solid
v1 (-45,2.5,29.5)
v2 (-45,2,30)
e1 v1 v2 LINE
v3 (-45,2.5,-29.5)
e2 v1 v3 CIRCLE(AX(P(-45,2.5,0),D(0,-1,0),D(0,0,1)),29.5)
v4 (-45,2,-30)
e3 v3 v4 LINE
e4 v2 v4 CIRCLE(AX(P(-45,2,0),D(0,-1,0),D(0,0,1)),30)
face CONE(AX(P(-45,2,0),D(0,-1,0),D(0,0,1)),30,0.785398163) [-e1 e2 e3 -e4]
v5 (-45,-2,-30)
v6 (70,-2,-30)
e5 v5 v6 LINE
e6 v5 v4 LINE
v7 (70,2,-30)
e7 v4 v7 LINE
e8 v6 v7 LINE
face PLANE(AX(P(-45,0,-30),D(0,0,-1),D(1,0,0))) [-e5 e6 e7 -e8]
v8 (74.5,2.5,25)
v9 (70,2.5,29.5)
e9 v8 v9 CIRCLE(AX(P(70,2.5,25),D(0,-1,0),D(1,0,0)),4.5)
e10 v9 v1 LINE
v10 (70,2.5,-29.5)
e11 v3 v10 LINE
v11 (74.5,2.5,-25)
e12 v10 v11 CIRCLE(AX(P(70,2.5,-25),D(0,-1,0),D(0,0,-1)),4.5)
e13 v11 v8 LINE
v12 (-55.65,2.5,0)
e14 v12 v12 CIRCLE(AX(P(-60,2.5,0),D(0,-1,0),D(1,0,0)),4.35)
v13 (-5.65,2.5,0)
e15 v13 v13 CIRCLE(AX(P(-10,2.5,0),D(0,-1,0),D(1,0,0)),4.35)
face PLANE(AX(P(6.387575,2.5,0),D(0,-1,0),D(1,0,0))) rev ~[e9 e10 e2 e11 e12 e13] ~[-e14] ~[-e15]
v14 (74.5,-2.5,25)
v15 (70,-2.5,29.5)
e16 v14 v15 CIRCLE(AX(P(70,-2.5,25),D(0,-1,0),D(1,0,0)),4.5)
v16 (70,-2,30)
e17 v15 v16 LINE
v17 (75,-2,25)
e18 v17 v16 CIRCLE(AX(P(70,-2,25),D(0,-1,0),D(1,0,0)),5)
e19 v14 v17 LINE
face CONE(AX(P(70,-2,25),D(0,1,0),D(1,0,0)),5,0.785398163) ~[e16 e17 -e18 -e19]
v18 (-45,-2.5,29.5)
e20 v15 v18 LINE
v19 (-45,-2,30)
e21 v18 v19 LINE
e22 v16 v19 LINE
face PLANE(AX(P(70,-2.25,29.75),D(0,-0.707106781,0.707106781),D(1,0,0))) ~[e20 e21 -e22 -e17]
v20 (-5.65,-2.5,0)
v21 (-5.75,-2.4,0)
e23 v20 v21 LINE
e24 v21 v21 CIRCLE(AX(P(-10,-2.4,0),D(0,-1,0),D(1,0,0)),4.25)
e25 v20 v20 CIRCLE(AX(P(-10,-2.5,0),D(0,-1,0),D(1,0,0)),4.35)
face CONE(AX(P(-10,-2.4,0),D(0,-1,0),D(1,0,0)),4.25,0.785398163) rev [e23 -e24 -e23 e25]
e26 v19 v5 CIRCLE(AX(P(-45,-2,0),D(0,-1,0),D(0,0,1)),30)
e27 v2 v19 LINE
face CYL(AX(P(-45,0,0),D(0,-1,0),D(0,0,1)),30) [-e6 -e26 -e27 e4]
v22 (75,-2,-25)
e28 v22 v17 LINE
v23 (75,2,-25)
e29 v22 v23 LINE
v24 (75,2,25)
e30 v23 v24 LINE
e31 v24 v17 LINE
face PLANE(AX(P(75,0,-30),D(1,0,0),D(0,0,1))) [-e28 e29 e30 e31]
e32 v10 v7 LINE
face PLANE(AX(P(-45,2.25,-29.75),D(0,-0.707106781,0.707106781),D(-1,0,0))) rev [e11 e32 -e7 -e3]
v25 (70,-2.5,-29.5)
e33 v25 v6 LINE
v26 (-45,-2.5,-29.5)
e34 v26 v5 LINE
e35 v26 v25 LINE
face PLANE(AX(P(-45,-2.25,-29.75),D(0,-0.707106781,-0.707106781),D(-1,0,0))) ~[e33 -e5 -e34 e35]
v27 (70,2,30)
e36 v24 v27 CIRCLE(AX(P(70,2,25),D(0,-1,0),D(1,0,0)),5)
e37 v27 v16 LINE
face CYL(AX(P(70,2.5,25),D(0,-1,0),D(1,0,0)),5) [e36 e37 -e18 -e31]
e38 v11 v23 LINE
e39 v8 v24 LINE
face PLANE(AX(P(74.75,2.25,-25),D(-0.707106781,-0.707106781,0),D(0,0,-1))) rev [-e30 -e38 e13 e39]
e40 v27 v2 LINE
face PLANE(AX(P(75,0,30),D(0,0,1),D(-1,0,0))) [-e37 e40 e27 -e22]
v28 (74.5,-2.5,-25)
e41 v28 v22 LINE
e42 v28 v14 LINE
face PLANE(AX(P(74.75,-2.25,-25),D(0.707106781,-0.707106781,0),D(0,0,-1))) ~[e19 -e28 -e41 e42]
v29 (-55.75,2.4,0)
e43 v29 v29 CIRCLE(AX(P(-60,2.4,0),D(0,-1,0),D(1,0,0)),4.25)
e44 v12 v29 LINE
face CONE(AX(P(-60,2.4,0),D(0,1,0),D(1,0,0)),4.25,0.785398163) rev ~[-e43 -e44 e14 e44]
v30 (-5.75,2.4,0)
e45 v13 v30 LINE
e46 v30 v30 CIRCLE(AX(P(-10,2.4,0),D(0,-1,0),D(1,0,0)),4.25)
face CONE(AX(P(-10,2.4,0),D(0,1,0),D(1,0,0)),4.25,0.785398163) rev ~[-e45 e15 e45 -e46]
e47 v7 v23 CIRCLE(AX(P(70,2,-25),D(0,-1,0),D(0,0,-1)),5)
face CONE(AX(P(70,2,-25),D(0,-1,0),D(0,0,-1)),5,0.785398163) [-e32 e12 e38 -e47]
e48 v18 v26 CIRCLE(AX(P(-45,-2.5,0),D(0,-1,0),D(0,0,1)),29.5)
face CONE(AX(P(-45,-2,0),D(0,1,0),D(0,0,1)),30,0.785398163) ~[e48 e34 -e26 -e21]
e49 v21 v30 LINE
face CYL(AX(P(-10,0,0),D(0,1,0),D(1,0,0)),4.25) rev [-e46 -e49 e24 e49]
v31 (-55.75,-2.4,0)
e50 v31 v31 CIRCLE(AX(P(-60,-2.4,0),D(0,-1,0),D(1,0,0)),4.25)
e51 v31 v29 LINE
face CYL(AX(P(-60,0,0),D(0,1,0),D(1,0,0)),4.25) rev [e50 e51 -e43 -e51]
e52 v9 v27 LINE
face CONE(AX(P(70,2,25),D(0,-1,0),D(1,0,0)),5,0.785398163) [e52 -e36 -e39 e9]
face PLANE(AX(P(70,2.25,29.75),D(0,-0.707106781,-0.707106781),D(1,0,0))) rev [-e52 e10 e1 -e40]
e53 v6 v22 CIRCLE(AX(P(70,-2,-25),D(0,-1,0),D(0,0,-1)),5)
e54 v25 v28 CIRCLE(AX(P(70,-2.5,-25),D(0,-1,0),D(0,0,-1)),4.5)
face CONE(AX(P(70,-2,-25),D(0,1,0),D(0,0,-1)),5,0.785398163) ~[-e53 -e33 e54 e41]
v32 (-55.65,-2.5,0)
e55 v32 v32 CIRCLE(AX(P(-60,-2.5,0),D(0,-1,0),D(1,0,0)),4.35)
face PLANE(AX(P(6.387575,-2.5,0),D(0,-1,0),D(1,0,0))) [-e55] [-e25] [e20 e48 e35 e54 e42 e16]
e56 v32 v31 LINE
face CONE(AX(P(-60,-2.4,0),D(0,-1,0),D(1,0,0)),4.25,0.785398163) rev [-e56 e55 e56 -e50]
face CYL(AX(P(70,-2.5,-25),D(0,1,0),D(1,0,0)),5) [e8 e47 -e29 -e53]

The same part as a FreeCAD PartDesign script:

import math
import FreeCAD as App
import Part
import Sketcher
Q = App.Units.Quantity


def edges_at(feature, points):
    """Names of the edges that pass closest to the given points."""
    edges = feature.Shape.Edges
    near = lambda p: min(range(len(edges)), key=lambda i: edges[i].distToShape(Part.Vertex(*p))[0])
    return sorted({f"Edge{near(p) + 1}" for p in points})

doc = App.newDocument("Part")
body = doc.addObject("PartDesign::Body", "Body")

sketch1 = body.newObject("Sketcher::SketchObject", "Sketch")
sketch1.AttachmentSupport = (doc.getObject("XZ_Plane"), [""])
sketch1.MapMode = "FlatFace"
sketch1.addGeometry([
    Part.LineSegment(App.Vector(75, -30, 0), App.Vector(75, 30, 0)),
    Part.LineSegment(App.Vector(75, 30, 0), App.Vector(-45, 30, 0)),
    Part.ArcOfCircle(Part.Circle(App.Vector(-45, 0, 0), App.Vector(0, 0, 1), 30), math.radians(90), math.radians(270)),
    Part.LineSegment(App.Vector(-45, -30, 0), App.Vector(75, -30, 0)),
    Part.Circle(App.Vector(-60, 0, 0), App.Vector(0, 0, 1), 4.25),
    Part.Circle(App.Vector(-10, 0, 0), App.Vector(0, 0, 1), 4.25),
], False)
sketch1.addConstraint([
    Sketcher.Constraint("Coincident", 0, 2, 1, 1),
    Sketcher.Constraint("Tangent", 1, 2, 2, 1),
    Sketcher.Constraint("Tangent", 2, 2, 3, 1),
    Sketcher.Constraint("Coincident", 3, 2, 0, 1),
    Sketcher.Constraint("Vertical", 0),
    Sketcher.Constraint("Horizontal", 1),
    Sketcher.Constraint("Horizontal", 3),
    Sketcher.Constraint("Equal", 4, 5),
    Sketcher.Constraint("PointOnObject", 2, 3, -1),
    Sketcher.Constraint("PointOnObject", 4, 3, -1),
    Sketcher.Constraint("PointOnObject", 5, 3, -1),
    Sketcher.Constraint("Radius", 2, Q("30 mm")),
    Sketcher.Constraint("Diameter", 4, Q("8.5 mm")),
    Sketcher.Constraint("DistanceX", 1, 2, 1, 1, Q("120 mm")),
    Sketcher.Constraint("DistanceX", 2, 3, -1, 1, Q("45 mm")),
    Sketcher.Constraint("DistanceX", 4, 3, -1, 1, Q("60 mm")),
    Sketcher.Constraint("DistanceX", 5, 3, -1, 1, Q("10 mm")),
])
pad1 = body.newObject("PartDesign::Pad", "Pad")
pad1.Profile = sketch1
pad1.Length = 5
pad1.Midplane = True
doc.recompute()

fillet = body.newObject("PartDesign::Fillet", "Fillet")
fillet.Base = (pad1, edges_at(pad1, [(75, 0, -30), (75, 0, 30)]))
fillet.Radius = 5
doc.recompute()

chamfer = body.newObject("PartDesign::Chamfer", "Chamfer")
chamfer.Base = (fillet, edges_at(fillet, [(12.5, -2.5, -30), (12.5, 2.5, 30)]))
chamfer.Size = 0.5
doc.recompute()

chamfer2 = body.newObject("PartDesign::Chamfer", "Chamfer001")
chamfer2.Base = (chamfer, edges_at(chamfer, [
    (-14.25, 2.5, 0),
    (-64.25, 2.5, 0),
    (-64.25, -2.5, 0),
    (-14.25, -2.5, 0),
]))
chamfer2.Size = 0.1

doc.recompute()
